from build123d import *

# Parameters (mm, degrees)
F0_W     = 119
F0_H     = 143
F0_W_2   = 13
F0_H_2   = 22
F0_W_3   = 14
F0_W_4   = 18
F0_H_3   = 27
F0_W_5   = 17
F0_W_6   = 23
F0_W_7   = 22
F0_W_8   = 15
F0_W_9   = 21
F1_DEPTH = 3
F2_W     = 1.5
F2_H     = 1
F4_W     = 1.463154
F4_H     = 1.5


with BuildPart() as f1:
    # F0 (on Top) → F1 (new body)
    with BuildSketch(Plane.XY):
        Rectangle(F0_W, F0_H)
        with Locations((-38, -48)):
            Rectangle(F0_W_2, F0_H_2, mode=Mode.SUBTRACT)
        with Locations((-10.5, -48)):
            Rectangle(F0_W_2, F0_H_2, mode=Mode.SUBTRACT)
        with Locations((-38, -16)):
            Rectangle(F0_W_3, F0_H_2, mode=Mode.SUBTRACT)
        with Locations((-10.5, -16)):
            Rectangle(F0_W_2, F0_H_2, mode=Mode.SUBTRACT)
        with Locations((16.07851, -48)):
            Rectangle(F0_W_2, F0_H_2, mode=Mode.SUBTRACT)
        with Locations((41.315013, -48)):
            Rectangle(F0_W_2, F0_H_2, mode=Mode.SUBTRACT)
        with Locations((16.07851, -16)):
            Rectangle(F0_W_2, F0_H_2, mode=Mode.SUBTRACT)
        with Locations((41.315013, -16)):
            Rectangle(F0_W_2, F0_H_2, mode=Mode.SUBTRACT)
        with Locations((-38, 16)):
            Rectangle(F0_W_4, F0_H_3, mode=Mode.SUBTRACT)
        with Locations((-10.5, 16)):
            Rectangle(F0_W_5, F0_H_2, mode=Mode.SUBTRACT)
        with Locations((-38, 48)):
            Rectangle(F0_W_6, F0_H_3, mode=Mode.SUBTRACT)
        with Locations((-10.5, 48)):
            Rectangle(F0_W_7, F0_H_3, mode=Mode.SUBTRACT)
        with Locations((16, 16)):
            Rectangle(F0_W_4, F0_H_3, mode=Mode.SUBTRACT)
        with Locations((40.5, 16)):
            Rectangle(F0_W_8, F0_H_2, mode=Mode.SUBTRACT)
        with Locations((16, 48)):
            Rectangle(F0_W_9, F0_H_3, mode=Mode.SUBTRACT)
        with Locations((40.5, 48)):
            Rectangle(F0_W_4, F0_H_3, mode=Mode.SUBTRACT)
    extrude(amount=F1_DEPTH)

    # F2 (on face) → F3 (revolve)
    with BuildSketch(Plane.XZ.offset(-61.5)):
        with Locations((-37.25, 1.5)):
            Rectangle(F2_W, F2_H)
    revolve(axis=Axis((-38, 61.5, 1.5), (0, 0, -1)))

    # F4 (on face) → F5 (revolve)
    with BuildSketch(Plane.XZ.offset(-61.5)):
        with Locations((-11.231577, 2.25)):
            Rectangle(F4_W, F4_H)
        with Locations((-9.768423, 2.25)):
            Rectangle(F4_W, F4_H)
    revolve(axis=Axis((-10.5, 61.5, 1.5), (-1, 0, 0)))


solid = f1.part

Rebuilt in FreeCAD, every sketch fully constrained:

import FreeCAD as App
import Part
import Sketcher
Q = App.Units.Quantity


def add_polygon(sketch, points):
    """Adds a closed chain of lines whose ends are joined by coincident constraints."""
    first, n = sketch.GeometryCount, len(points)
    for a, b in zip(points, points[1:] + points[:1]):
        sketch.addGeometry(Part.LineSegment(App.Vector(*a, 0), App.Vector(*b, 0)), False)
    for i in range(n):
        sketch.addConstraint(Sketcher.Constraint("Coincident", first + i, 2, first + (i + 1) % n, 1))

doc = App.newDocument("Part")
body = doc.addObject("PartDesign::Body", "Body")

# Sketch on XY plane
sketch1 = body.newObject("Sketcher::SketchObject", "Sketch")
sketch1.AttachmentSupport = (doc.getObject("XY_Plane"), [""])
sketch1.MapMode = "FlatFace"
add_polygon(sketch1, [(-59.5, 71.5), (-59.5, -71.5), (59.5, -71.5), (59.5, 71.5)])  # lines 0-3
add_polygon(sketch1, [(-31.5, -59), (-44.5, -59), (-44.5, -37), (-31.5, -37)])  # lines 4-7
add_polygon(sketch1, [(-4, -59), (-17, -59), (-17, -37), (-4, -37)])  # lines 8-11
add_polygon(sketch1, [(-31, -27), (-45, -27), (-45, -5), (-31, -5)])  # lines 12-15
add_polygon(sketch1, [(-4, -27), (-17, -27), (-17, -5), (-4, -5)])  # lines 16-19
add_polygon(sketch1, [(22.57851, -59), (9.57851, -59), (9.57851, -37), (22.57851, -37)])  # lines 20-23
add_polygon(sketch1, [(47.815013, -59), (34.815013, -59), (34.815013, -37), (47.815013, -37)])  # lines 24-27
add_polygon(sketch1, [(22.57851, -27), (9.57851, -27), (9.57851, -5), (22.57851, -5)])  # lines 28-31
add_polygon(sketch1, [(47.815013, -27), (34.815013, -27), (34.815013, -5), (47.815013, -5)])  # lines 32-35
add_polygon(sketch1, [(-29, 2.5), (-47, 2.5), (-47, 29.5), (-29, 29.5)])  # lines 36-39
add_polygon(sketch1, [(-2, 5), (-19, 5), (-19, 27), (-2, 27)])  # lines 40-43
add_polygon(sketch1, [(-26.5, 34.5), (-49.5, 34.5), (-49.5, 61.5), (-26.5, 61.5)])  # lines 44-47
add_polygon(sketch1, [(0.5, 34.5), (-21.5, 34.5), (-21.5, 61.5), (0.5, 61.5)])  # lines 48-51
add_polygon(sketch1, [(25, 2.5), (7, 2.5), (7, 29.5), (25, 29.5)])  # lines 52-55
add_polygon(sketch1, [(48, 5), (33, 5), (33, 27), (48, 27)])  # lines 56-59
add_polygon(sketch1, [(26.5, 34.5), (5.5, 34.5), (5.5, 61.5), (26.5, 61.5)])  # lines 60-63
add_polygon(sketch1, [(49.5, 34.5), (31.5, 34.5), (31.5, 61.5), (49.5, 61.5)])  # lines 64-67
sketch1.addConstraint([
    Sketcher.Constraint("Vertical", 0),
    Sketcher.Constraint("Horizontal", 1),
    Sketcher.Constraint("Vertical", 2),
    Sketcher.Constraint("Horizontal", 3),
    Sketcher.Constraint("Horizontal", 4),
    Sketcher.Constraint("Vertical", 5),
    Sketcher.Constraint("Horizontal", 6),
    Sketcher.Constraint("Vertical", 7),
    Sketcher.Constraint("Horizontal", 8),
    Sketcher.Constraint("Vertical", 9),
    Sketcher.Constraint("Horizontal", 10),
    Sketcher.Constraint("Vertical", 11),
    Sketcher.Constraint("Horizontal", 12),
    Sketcher.Constraint("Vertical", 13),
    Sketcher.Constraint("Horizontal", 14),
    Sketcher.Constraint("Vertical", 15),
    Sketcher.Constraint("Horizontal", 16),
    Sketcher.Constraint("Vertical", 17),
    Sketcher.Constraint("Horizontal", 18),
    Sketcher.Constraint("Vertical", 19),
    Sketcher.Constraint("Horizontal", 20),
    Sketcher.Constraint("Vertical", 21),
    Sketcher.Constraint("Horizontal", 22),
    Sketcher.Constraint("Vertical", 23),
    Sketcher.Constraint("Horizontal", 24),
    Sketcher.Constraint("Vertical", 25),
    Sketcher.Constraint("Horizontal", 26),
    Sketcher.Constraint("Vertical", 27),
    Sketcher.Constraint("Horizontal", 28),
    Sketcher.Constraint("Vertical", 29),
    Sketcher.Constraint("Horizontal", 30),
    Sketcher.Constraint("Vertical", 31),
    Sketcher.Constraint("Horizontal", 32),
    Sketcher.Constraint("Vertical", 33),
    Sketcher.Constraint("Horizontal", 34),
    Sketcher.Constraint("Vertical", 35),
    Sketcher.Constraint("Horizontal", 36),
    Sketcher.Constraint("Vertical", 37),
    Sketcher.Constraint("Horizontal", 38),
    Sketcher.Constraint("Vertical", 39),
    Sketcher.Constraint("Horizontal", 40),
    Sketcher.Constraint("Vertical", 41),
    Sketcher.Constraint("Horizontal", 42),
    Sketcher.Constraint("Vertical", 43),
    Sketcher.Constraint("Horizontal", 44),
    Sketcher.Constraint("Vertical", 45),
    Sketcher.Constraint("Horizontal", 46),
    Sketcher.Constraint("Vertical", 47),
    Sketcher.Constraint("Horizontal", 48),
    Sketcher.Constraint("Vertical", 49),
    Sketcher.Constraint("Horizontal", 50),
    Sketcher.Constraint("Vertical", 51),
    Sketcher.Constraint("Horizontal", 52),
    Sketcher.Constraint("Vertical", 53),
    Sketcher.Constraint("Horizontal", 54),
    Sketcher.Constraint("Vertical", 55),
    Sketcher.Constraint("Horizontal", 56),
    Sketcher.Constraint("Vertical", 57),
    Sketcher.Constraint("Horizontal", 58),
    Sketcher.Constraint("Vertical", 59),
    Sketcher.Constraint("Horizontal", 60),
    Sketcher.Constraint("Vertical", 61),
    Sketcher.Constraint("Horizontal", 62),
    Sketcher.Constraint("Vertical", 63),
    Sketcher.Constraint("Horizontal", 64),
    Sketcher.Constraint("Vertical", 65),
    Sketcher.Constraint("Horizontal", 66),
    Sketcher.Constraint("Vertical", 67),
    Sketcher.Constraint("Symmetric", 0, 2, 2, 2, -1, 1),
    Sketcher.Constraint("Symmetric", 46, 2, 62, 2, -2),
    Sketcher.Constraint("Symmetric", 45, 2, 66, 2, -2),
    Sketcher.Constraint("Horizontal", 7, 2, 8, 2),
    Sketcher.Constraint("Horizontal", 6, 2, 9, 2),
    Sketcher.Constraint("Horizontal", 15, 2, 16, 2),
    Sketcher.Constraint("Horizontal", 14, 2, 17, 2),
    Sketcher.Constraint("Horizontal", 11, 2, 20, 2),
    Sketcher.Constraint("Horizontal", 10, 2, 21, 2),
    Sketcher.Constraint("Horizontal", 23, 2, 24, 2),
    Sketcher.Constraint("Horizontal", 22, 2, 25, 2),
    Sketcher.Constraint("Horizontal", 19, 2, 28, 2),
    Sketcher.Constraint("Horizontal", 18, 2, 29, 2),
    Sketcher.Constraint("Horizontal", 31, 2, 32, 2),
    Sketcher.Constraint("Horizontal", 30, 2, 33, 2),
    Sketcher.Constraint("Horizontal", 47, 2, 48, 2),
    Sketcher.Constraint("Horizontal", 46, 2, 49, 2),
    Sketcher.Constraint("Horizontal", 39, 2, 52, 2),
    Sketcher.Constraint("Horizontal", 38, 2, 53, 2),
    Sketcher.Constraint("Horizontal", 43, 2, 56, 2),
    Sketcher.Constraint("Horizontal", 42, 2, 57, 2),
    Sketcher.Constraint("Horizontal", 51, 2, 60, 2),
    Sketcher.Constraint("Horizontal", 63, 2, 64, 2),
    Sketcher.Constraint("Vertical", 9, 2, 16, 2),
    Sketcher.Constraint("Vertical", 11, 2, 18, 2),
    Sketcher.Constraint("Vertical", 21, 2, 28, 2),
    Sketcher.Constraint("Vertical", 23, 2, 30, 2),
    Sketcher.Constraint("Vertical", 25, 2, 32, 2),
    Sketcher.Constraint("Vertical", 27, 2, 34, 2),
    Sketcher.Constraint("Equal", 6, 8),
    Sketcher.Constraint("Equal", 18, 20),
    Sketcher.Constraint("Equal", 22, 24),
    Sketcher.Constraint("Equal", 38, 52),
    Sketcher.Constraint("Equal", 54, 64),
    Sketcher.Constraint("Equal", 50, 5),
    Sketcher.Constraint("Equal", 11, 13),
    Sketcher.Constraint("Equal", 35, 41),
    Sketcher.Constraint("Equal", 39, 45),
    Sketcher.Constraint("DistanceX", 1, 1, 1, 2, Q("119 mm")),
    Sketcher.Constraint("DistanceX", 4, 2, 4, 1, Q("13 mm")),
    Sketcher.Constraint("DistanceX", 12, 2, 12, 1, Q("14 mm")),
    Sketcher.Constraint("DistanceX", 36, 2, 36, 1, Q("18 mm")),
    Sketcher.Constraint("DistanceX", 40, 2, 40, 1, Q("17 mm")),
    Sketcher.Constraint("DistanceX", 44, 2, 44, 1, Q("23 mm")),
    Sketcher.Constraint("DistanceX", 48, 2, 48, 1, Q("22 mm")),
    Sketcher.Constraint("DistanceX", 56, 2, 56, 1, Q("15 mm")),
    Sketcher.Constraint("DistanceX", 60, 2, 60, 1, Q("21 mm")),
    Sketcher.Constraint("DistanceY", 0, 2, 0, 1, Q("143 mm")),
    Sketcher.Constraint("DistanceY", 37, 1, 37, 2, Q("27 mm")),
    Sketcher.Constraint("DistanceY", 4, 2, -1, 1, Q("59 mm")),
    Sketcher.Constraint("DistanceX", 8, 2, -1, 1, Q("17 mm")),
    Sketcher.Constraint("DistanceX", 12, 2, -1, 1, Q("45 mm")),
    Sketcher.Constraint("DistanceY", 12, 2, -1, 1, Q("27 mm")),
    Sketcher.Constraint("DistanceX", 36, 2, -1, 1, Q("47 mm")),
    Sketcher.Constraint("DistanceX", 40, 2, -1, 1, Q("19 mm")),
    Sketcher.Constraint("DistanceY", -1, 1, 40, 2, Q("5 mm")),
    Sketcher.Constraint("DistanceX", -1, 1, 52, 2, Q("7 mm")),
    Sketcher.Constraint("DistanceX", -1, 1, 56, 2, Q("33 mm")),
    Sketcher.Constraint("DistanceX", 4, 2, -1, 1, Q("44.5 mm")),
    Sketcher.Constraint("DistanceY", -1, 1, 36, 2, Q("2.5 mm")),
    Sketcher.Constraint("DistanceX", 44, 2, -1, 1, Q("49.5 mm")),
    Sketcher.Constraint("DistanceY", -1, 1, 44, 2, Q("34.5 mm")),
    Sketcher.Constraint("DistanceX", 48, 2, -1, 1, Q("21.5 mm")),
    Sketcher.Constraint("DistanceX", -1, 1, 20, 2, Q("9.57851 mm")),
    Sketcher.Constraint("DistanceX", -1, 1, 24, 2, Q("34.815013 mm")),
])
pad1 = body.newObject("PartDesign::Pad", "Pad")
pad1.Profile = sketch1
pad1.Length = 3

# Sketch on XZ plane
sketch2 = body.newObject("Sketcher::SketchObject", "Sketch001")
sketch2.AttachmentSupport = (doc.getObject("XZ_Plane"), [""])
sketch2.MapMode = "FlatFace"
sketch2.AttachmentOffset = App.Placement(App.Vector(0, 0, -61.5), App.Rotation())
add_polygon(sketch2, [(-38, 2), (-38, 1), (-36.5, 1), (-36.5, 2)])  # lines 0-3
sketch2.addGeometry(Part.LineSegment(App.Vector(-38, 2, 0), App.Vector(-38, 1, 0)), True)  # axis
sketch2.addConstraint([
    Sketcher.Constraint("Vertical", 0),
    Sketcher.Constraint("Horizontal", 1),
    Sketcher.Constraint("Vertical", 2),
    Sketcher.Constraint("Horizontal", 3),
    Sketcher.Constraint("Vertical", 4),
    Sketcher.Constraint("Coincident", 4, 1, 3, 2),
    Sketcher.Constraint("Horizontal", 1, 2, 4, 2),
    Sketcher.Constraint("DistanceY", 0, 2, 0, 1, Q("1 mm")),
    Sketcher.Constraint("DistanceX", 1, 1, 1, 2, Q("1.5 mm")),
    Sketcher.Constraint("DistanceX", 0, 2, -1, 1, Q("38 mm")),
    Sketcher.Constraint("DistanceY", -1, 1, 0, 2, Q("1 mm")),
])
revolution = body.newObject("PartDesign::Revolution", "Revolution")
revolution.Profile = sketch2
revolution.ReferenceAxis = (sketch2, ["Axis0"])
revolution.Angle = 360

# Sketch on XZ plane
sketch3 = body.newObject("Sketcher::SketchObject", "Sketch002")
sketch3.AttachmentSupport = (doc.getObject("XZ_Plane"), [""])
sketch3.MapMode = "FlatFace"
sketch3.AttachmentOffset = App.Placement(App.Vector(0, 0, -61.5), App.Rotation())
add_polygon(sketch3, [(-11.963154, 3), (-11.963154, 1.5), (-9.036846, 1.5), (-9.036846, 3)])  # lines 0-3
sketch3.addGeometry(Part.LineSegment(App.Vector(-9.036846, 1.5, 0), App.Vector(-11.963154, 1.5, 0)), True)  # axis
sketch3.addConstraint([
    Sketcher.Constraint("Vertical", 0),
    Sketcher.Constraint("Horizontal", 1),
    Sketcher.Constraint("Vertical", 2),
    Sketcher.Constraint("Horizontal", 3),
    Sketcher.Constraint("Horizontal", 4),
    Sketcher.Constraint("Coincident", 4, 1, 1, 2),
    Sketcher.Constraint("Vertical", 3, 2, 4, 2),
    Sketcher.Constraint("DistanceY", 0, 2, 0, 1, Q("1.5 mm")),
    Sketcher.Constraint("DistanceY", -1, 1, 2, 2, Q("3 mm")),
    Sketcher.Constraint("DistanceX", 1, 1, 1, 2, Q("2.926308 mm")),
    Sketcher.Constraint("DistanceX", 0, 2, -1, 1, Q("11.963154 mm")),
])
revolution2 = body.newObject("PartDesign::Revolution", "Revolution001")
revolution2.Profile = sketch3
revolution2.ReferenceAxis = (sketch3, ["Axis0"])
revolution2.Angle = 360

doc.recompute()
